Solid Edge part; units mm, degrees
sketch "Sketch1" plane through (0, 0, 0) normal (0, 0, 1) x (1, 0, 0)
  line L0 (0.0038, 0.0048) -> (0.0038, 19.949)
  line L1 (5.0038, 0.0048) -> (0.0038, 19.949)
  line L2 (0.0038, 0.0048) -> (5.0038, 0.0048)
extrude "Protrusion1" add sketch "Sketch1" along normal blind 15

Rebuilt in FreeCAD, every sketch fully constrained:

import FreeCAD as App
import Part
import Sketcher

doc = App.newDocument("Part")
body = doc.addObject("PartDesign::Body", "Body")

# Sketch on XY plane
sketch1 = body.newObject("Sketcher::SketchObject", "Sketch")
sketch1.AttachmentSupport = (doc.getObject("XY_Plane"), [""])
sketch1.MapMode = "FlatFace"
sketch1.addGeometry([
    Part.LineSegment(App.Vector(0, 20, 0), App.Vector(0, 0, 0)),
    Part.LineSegment(App.Vector(0, 0, 0), App.Vector(5, 0, 0)),
    Part.LineSegment(App.Vector(5, 0, 0), App.Vector(0, 20, 0)),
], False)
sketch1.addConstraint([
    Sketcher.Constraint("Coincident", 0, 2, 1, 1),
    Sketcher.Constraint("Coincident", 1, 2, 2, 1),
    Sketcher.Constraint("Coincident", 2, 2, 0, 1),
    Sketcher.Constraint("Vertical", 0),
    Sketcher.Constraint("Horizontal", 1),
    Sketcher.Constraint("DistanceX", 1, 1, 1, 2, 5.0),
    Sketcher.Constraint("DistanceY", 0, 2, 0, 1, 19.9442),
    Sketcher.Constraint("DistanceY", -1, 1, 2, 2, 19.949),
    Sketcher.Constraint("DistanceX", -1, 1, 0, 2, 0.0038),
])
pad1 = body.newObject("PartDesign::Pad", "Pad")
pad1.Profile = sketch1
pad1.Length = 15

doc.recompute()
